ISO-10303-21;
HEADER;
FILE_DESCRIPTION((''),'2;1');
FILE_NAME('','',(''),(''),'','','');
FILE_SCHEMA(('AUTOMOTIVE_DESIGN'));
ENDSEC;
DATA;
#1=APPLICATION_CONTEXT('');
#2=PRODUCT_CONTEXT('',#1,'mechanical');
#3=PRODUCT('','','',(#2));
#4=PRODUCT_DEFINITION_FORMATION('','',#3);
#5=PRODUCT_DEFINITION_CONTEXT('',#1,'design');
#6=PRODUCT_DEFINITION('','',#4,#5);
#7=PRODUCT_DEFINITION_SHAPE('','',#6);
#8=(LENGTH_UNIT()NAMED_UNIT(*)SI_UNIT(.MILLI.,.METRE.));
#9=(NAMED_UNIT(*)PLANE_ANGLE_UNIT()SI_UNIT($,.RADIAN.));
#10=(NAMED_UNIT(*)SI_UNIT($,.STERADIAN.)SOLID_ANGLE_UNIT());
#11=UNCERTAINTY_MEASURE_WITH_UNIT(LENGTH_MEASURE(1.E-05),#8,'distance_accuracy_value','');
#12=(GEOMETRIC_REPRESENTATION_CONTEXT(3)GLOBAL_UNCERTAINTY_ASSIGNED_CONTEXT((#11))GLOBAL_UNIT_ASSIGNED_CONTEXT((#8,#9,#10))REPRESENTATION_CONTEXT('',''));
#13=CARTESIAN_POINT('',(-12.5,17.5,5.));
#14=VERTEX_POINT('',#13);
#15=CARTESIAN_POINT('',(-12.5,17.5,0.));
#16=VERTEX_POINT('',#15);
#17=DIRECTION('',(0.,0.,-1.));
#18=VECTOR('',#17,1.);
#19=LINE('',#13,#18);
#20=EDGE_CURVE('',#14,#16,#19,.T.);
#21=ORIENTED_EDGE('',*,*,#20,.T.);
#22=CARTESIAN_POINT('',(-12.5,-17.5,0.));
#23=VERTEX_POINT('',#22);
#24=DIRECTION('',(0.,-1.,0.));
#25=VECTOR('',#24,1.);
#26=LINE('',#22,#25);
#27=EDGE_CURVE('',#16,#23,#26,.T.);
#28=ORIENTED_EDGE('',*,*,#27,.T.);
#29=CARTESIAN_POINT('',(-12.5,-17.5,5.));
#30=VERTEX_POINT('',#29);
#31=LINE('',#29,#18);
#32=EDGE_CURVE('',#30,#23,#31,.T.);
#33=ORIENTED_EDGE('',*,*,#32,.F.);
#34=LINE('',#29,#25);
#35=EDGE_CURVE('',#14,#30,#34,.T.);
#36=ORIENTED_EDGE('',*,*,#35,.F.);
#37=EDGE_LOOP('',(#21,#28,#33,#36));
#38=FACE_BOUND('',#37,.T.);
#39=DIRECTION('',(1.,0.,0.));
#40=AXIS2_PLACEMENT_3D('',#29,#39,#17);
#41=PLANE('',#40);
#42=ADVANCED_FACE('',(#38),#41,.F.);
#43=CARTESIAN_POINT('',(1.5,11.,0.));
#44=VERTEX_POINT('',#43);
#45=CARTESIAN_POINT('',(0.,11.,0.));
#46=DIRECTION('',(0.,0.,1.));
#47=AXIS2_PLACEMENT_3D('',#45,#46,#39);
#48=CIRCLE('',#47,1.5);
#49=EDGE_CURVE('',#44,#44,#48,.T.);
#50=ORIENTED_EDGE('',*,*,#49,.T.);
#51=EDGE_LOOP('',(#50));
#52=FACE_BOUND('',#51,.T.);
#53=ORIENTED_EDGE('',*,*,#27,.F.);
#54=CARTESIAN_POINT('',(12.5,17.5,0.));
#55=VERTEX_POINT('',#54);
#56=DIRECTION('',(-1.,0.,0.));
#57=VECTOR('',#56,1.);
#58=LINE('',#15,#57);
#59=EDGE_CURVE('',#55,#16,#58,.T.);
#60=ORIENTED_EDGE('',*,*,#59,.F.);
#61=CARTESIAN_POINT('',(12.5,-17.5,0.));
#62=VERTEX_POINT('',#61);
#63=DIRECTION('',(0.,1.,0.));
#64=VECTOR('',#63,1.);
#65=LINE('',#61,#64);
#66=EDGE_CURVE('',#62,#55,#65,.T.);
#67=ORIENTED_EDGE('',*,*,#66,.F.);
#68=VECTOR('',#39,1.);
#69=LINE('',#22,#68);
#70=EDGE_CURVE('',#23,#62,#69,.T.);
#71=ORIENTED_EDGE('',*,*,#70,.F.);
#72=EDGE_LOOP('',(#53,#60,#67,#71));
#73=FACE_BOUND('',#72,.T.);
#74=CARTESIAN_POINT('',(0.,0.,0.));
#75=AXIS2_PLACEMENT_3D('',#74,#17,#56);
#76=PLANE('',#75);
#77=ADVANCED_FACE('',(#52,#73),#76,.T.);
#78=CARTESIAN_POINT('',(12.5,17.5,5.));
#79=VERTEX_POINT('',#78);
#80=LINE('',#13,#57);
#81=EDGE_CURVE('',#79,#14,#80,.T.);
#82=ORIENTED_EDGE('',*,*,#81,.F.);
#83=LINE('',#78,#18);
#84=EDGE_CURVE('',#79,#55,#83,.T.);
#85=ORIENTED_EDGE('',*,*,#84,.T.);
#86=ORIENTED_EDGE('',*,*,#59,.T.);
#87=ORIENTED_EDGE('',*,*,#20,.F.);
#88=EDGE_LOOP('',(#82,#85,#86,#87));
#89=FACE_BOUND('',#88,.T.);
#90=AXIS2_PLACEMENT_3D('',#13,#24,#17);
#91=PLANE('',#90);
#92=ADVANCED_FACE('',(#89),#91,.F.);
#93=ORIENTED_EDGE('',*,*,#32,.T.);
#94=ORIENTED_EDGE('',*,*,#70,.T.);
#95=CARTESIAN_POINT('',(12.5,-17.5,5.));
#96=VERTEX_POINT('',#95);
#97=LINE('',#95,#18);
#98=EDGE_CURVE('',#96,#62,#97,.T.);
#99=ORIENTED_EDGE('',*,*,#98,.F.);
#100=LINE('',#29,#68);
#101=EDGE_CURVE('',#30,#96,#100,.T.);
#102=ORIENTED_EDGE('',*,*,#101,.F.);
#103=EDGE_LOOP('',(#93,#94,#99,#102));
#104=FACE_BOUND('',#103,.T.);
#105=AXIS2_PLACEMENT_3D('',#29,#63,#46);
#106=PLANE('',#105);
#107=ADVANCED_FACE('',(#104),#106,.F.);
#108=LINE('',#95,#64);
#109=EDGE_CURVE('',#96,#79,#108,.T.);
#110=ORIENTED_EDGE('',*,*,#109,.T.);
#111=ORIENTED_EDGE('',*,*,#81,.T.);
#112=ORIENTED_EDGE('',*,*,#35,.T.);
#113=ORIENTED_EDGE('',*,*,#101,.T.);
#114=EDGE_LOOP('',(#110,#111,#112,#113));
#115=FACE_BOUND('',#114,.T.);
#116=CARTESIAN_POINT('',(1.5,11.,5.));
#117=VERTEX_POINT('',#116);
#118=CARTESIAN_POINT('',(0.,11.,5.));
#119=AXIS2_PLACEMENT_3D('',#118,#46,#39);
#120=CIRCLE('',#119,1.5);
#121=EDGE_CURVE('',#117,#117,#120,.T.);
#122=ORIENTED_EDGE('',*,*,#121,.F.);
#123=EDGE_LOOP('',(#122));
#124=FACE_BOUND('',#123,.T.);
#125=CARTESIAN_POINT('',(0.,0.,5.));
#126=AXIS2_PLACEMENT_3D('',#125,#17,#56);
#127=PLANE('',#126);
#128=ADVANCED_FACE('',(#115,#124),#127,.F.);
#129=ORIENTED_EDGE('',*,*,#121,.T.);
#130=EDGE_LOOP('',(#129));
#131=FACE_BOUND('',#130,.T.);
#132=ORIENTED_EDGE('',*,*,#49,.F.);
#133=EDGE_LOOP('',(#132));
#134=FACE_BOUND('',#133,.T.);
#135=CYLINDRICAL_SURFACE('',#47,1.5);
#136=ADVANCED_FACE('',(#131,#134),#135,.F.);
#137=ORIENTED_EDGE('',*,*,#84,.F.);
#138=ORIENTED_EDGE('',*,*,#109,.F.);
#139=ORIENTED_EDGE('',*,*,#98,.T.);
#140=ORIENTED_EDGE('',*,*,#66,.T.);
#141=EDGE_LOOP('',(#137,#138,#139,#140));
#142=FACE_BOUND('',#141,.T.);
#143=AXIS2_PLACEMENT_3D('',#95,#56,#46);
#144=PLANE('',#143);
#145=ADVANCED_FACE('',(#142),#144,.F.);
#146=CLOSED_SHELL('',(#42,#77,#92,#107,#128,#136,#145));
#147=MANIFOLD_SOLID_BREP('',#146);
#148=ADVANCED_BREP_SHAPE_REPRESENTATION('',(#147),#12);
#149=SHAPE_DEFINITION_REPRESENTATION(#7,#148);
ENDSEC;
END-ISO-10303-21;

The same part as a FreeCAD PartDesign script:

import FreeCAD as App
import Part
import Sketcher

V = App.Vector
Q = App.Units.Quantity

doc = App.newDocument("Part")
params = doc.addObject("Spreadsheet::Sheet", "Params")
for row, (alias, value) in enumerate([
    ("sketch1_width", "25 mm"),
    ("sketch1_height", "35 mm"),
    ("pad1_length", "5 mm"),
    ("sketch2_diameter", "3 mm"),
], start=1):
    params.set(f"A{row}", alias)
    params.set(f"B{row}", "=" + value)
    params.setAlias(f"B{row}", alias)

body = doc.addObject("PartDesign::Body", "Body")

# Sketch on XY plane
sketch1 = body.newObject("Sketcher::SketchObject", "Sketch")
sketch1.AttachmentSupport = (doc.getObject("XY_Plane"), [""])
sketch1.MapMode = "FlatFace"
sketch1.addGeometry([
    Part.LineSegment(V(-12, 18, 0), V(-12, -18, 0)),
    Part.LineSegment(V(-12, -18, 0), V(12, -18, 0)),
    Part.LineSegment(V(12, -18, 0), V(12, 18, 0)),
    Part.LineSegment(V(12, 18, 0), V(-12, 18, 0)),
], False)
sketch1.addConstraint([
    Sketcher.Constraint("Coincident", 0, 2, 1, 1),
    Sketcher.Constraint("Coincident", 1, 2, 2, 1),
    Sketcher.Constraint("Coincident", 2, 2, 3, 1),
    Sketcher.Constraint("Coincident", 3, 2, 0, 1),
    Sketcher.Constraint("Vertical", 0),
    Sketcher.Constraint("Horizontal", 1),
    Sketcher.Constraint("Vertical", 2),
    Sketcher.Constraint("Horizontal", 3),
    Sketcher.Constraint("Symmetric", 0, 2, 2, 2, -1, 1),
    Sketcher.Constraint("DistanceX", 1, 1, 1, 2, Q("25 mm")),
    Sketcher.Constraint("DistanceY", 0, 2, 0, 1, Q("35 mm")),
])
sketch1.setExpression("Constraints[9]", "Params.sketch1_width")
sketch1.setExpression("Constraints[10]", "Params.sketch1_height")
pad1 = body.newObject("PartDesign::Pad", "Pad")
pad1.Profile = sketch1
pad1.setExpression("Length", "Params.pad1_length")

# Sketch on XY plane
sketch2 = body.newObject("Sketcher::SketchObject", "Sketch001")
sketch2.AttachmentSupport = (doc.getObject("XY_Plane"), [""])
sketch2.MapMode = "FlatFace"
sketch2.AttachmentOffset = App.Placement(V(0, 0, 5), App.Rotation())
sketch2.addGeometry(Part.Circle(V(0, 11, 0), V(0, 0, 1), 1.5), False)
sketch2.addConstraint([
    Sketcher.Constraint("PointOnObject", 0, 3, -2),
    Sketcher.Constraint("Diameter", 0, Q("3 mm")),
    Sketcher.Constraint("DistanceY", -1, 1, 0, 3, Q("11 mm")),
])
sketch2.setExpression("Constraints[1]", "Params.sketch2_diameter")
pocket1 = body.newObject("PartDesign::Pocket", "Pocket")
pocket1.Profile = sketch2
pocket1.Type = "ThroughAll"

doc.recompute()
